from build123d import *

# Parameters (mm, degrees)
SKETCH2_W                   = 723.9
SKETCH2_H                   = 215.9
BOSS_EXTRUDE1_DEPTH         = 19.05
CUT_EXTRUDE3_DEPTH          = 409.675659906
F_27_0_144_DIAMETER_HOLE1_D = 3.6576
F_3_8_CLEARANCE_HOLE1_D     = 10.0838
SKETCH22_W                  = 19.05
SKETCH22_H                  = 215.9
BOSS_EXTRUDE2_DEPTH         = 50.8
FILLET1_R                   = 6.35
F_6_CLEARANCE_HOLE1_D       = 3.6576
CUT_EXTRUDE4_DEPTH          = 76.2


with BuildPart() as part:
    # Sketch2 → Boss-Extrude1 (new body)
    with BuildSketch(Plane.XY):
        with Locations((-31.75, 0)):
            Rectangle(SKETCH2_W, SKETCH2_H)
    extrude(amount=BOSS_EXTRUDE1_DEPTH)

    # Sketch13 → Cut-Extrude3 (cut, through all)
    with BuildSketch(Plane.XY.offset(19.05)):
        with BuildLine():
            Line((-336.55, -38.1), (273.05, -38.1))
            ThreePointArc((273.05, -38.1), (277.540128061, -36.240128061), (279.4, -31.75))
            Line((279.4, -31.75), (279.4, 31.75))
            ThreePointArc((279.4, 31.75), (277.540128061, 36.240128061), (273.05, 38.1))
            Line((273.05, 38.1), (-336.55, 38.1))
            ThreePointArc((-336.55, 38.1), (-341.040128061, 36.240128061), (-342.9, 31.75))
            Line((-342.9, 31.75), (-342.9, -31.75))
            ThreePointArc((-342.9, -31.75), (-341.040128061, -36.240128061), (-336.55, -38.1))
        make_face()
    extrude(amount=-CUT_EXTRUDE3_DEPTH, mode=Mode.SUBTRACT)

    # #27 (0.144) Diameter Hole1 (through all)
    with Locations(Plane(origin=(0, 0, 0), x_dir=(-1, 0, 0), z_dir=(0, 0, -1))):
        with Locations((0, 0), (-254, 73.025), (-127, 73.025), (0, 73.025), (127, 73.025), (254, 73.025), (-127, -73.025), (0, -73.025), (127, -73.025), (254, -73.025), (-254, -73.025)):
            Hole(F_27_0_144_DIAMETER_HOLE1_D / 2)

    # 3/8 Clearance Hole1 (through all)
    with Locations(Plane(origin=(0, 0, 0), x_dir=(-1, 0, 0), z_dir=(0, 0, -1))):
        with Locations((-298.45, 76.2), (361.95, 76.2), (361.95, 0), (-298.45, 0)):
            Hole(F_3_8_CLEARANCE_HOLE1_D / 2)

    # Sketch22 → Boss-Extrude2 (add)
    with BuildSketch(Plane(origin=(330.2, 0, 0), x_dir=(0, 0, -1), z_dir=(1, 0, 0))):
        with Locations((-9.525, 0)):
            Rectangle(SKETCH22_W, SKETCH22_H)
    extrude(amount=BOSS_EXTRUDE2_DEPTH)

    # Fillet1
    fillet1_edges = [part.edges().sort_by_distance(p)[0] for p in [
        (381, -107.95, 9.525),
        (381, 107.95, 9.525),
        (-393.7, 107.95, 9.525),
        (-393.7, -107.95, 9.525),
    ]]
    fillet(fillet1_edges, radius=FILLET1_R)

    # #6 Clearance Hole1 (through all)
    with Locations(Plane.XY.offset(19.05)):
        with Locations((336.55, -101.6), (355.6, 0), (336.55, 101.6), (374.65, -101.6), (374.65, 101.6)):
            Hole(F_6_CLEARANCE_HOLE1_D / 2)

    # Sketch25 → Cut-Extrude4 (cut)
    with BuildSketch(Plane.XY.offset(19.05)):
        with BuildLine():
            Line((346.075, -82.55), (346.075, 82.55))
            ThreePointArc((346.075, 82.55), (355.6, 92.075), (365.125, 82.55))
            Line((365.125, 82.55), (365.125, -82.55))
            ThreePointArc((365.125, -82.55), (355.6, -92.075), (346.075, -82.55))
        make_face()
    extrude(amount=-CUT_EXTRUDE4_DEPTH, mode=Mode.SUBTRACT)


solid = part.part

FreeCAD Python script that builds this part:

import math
import FreeCAD as App
import Part
import Sketcher

V = App.Vector
Q = App.Units.Quantity


def edges_at(feature, points):
    """Names of the edges that pass closest to the given points."""
    edges = feature.Shape.Edges
    near = lambda p: min(range(len(edges)), key=lambda i: edges[i].distToShape(Part.Vertex(*p))[0])
    return sorted({f"Edge{near(p) + 1}" for p in points})

doc = App.newDocument("Part")
params = doc.addObject("Spreadsheet::Sheet", "Params")
for row, (alias, value) in enumerate([
    ("sketch1_width", "28.5 in"),
    ("sketch1_height", "8.5 in"),
    ("pad1_length", "0.75 in"),
    ("sketch2_width", "24 in"),
    ("sketch2_radius", "0.25 in"),
    ("sketch2_height", "2.5 in"),
    ("sketch3_diameter", "0.144 in"),
    ("hole_diameter", "0.144 in"),
    ("sketch4_diameter", "0.397 in"),
    ("hole2_diameter", "0.397 in"),
    ("sketch5_width", "8.5 in"),
    ("sketch5_height", "0.75 in"),
    ("pad2_length", "2 in"),
    ("fillet_radius", "0.25 in"),
    ("sketch6_diameter", "0.144 in"),
    ("hole3_diameter", "0.144 in"),
    ("sketch7_height", "6.5 in"),
    ("sketch7_radius", "0.375 in"),
    ("pocket2_length", "3 in"),
], start=1):
    params.set(f"A{row}", alias)
    params.set(f"B{row}", "=" + value)
    params.setAlias(f"B{row}", alias)

body = doc.addObject("PartDesign::Body", "Body")

sketch1 = doc.addObject("Sketcher::SketchObject", "Sketch")
body.addObject(sketch1)
sketch1.AttachmentSupport = (doc.XY_Plane, [""])
sketch1.MapMode = "FlatFace"
sketch1.addGeometry(Part.LineSegment(V(-393.7, 107.95, 0), V(-393.7, -107.95, 0)), False)
sketch1.addGeometry(Part.LineSegment(V(-393.7, -107.95, 0), V(330.2, -107.95, 0)), False)
sketch1.addGeometry(Part.LineSegment(V(330.2, -107.95, 0), V(330.2, 107.95, 0)), False)
sketch1.addGeometry(Part.LineSegment(V(330.2, 107.95, 0), V(-393.7, 107.95, 0)), False)
sketch1.addConstraint(Sketcher.Constraint("Coincident", 0, 2, 1, 1))
sketch1.addConstraint(Sketcher.Constraint("Coincident", 1, 2, 2, 1))
sketch1.addConstraint(Sketcher.Constraint("Coincident", 2, 2, 3, 1))
sketch1.addConstraint(Sketcher.Constraint("Coincident", 3, 2, 0, 1))
sketch1.addConstraint(Sketcher.Constraint("Vertical", 0))
sketch1.addConstraint(Sketcher.Constraint("Horizontal", 1))
sketch1.addConstraint(Sketcher.Constraint("Vertical", 2))
sketch1.addConstraint(Sketcher.Constraint("Horizontal", 3))
sketch1.addConstraint(Sketcher.Constraint("DistanceX", 1, 1, 1, 2, Q("28.5 in")))
sketch1.addConstraint(Sketcher.Constraint("DistanceY", 0, 2, 0, 1, Q("8.5 in")))
sketch1.addConstraint(Sketcher.Constraint("DistanceX", -1, 1, 1, 2, Q("13 in")))
sketch1.addConstraint(Sketcher.Constraint("DistanceY", 0, 2, -1, 1, Q("4.25 in")))
sketch1.setExpression("Constraints[8]", "Params.sketch1_width")
sketch1.setExpression("Constraints[9]", "Params.sketch1_height")
pad1 = doc.addObject("PartDesign::Pad", "Pad")
body.addObject(pad1)
pad1.Profile = sketch1
pad1.setExpression("Length", "Params.pad1_length")

sketch2 = doc.addObject("Sketcher::SketchObject", "Sketch001")
body.addObject(sketch2)
sketch2.AttachmentSupport = (doc.XY_Plane, [""])
sketch2.MapMode = "FlatFace"
sketch2.AttachmentOffset = App.Placement(V(0, 0, 0.75 * 25.4), App.Rotation())
sketch2.addGeometry(Part.LineSegment(V(-336.55, -38.1, 0), V(273.05, -38.1, 0)), False)
sketch2.addGeometry(Part.ArcOfCircle(Part.Circle(V(273.05, -31.75, 0), V(0, 0, 1), 6.35), math.radians(-90), math.radians(0)), False)
sketch2.addGeometry(Part.LineSegment(V(279.4, -31.75, 0), V(279.4, 31.75, 0)), False)
sketch2.addGeometry(Part.ArcOfCircle(Part.Circle(V(273.05, 31.75, 0), V(0, 0, 1), 6.35), math.radians(0), math.radians(90)), False)
sketch2.addGeometry(Part.LineSegment(V(273.05, 38.1, 0), V(-336.55, 38.1, 0)), False)
sketch2.addGeometry(Part.ArcOfCircle(Part.Circle(V(-336.55, 31.75, 0), V(0, 0, 1), 6.35), math.radians(90), math.radians(180)), False)
sketch2.addGeometry(Part.LineSegment(V(-342.9, 31.75, 0), V(-342.9, -31.75, 0)), False)
sketch2.addGeometry(Part.ArcOfCircle(Part.Circle(V(-336.55, -31.75, 0), V(0, 0, 1), 6.35), math.radians(180), math.radians(270)), False)
sketch2.addConstraint(Sketcher.Constraint("Tangent", 0, 2, 1, 1))
sketch2.addConstraint(Sketcher.Constraint("Tangent", 1, 2, 2, 1))
sketch2.addConstraint(Sketcher.Constraint("Tangent", 2, 2, 3, 1))
sketch2.addConstraint(Sketcher.Constraint("Tangent", 3, 2, 4, 1))
sketch2.addConstraint(Sketcher.Constraint("Tangent", 4, 2, 5, 1))
sketch2.addConstraint(Sketcher.Constraint("Tangent", 5, 2, 6, 1))
sketch2.addConstraint(Sketcher.Constraint("Tangent", 6, 2, 7, 1))
sketch2.addConstraint(Sketcher.Constraint("Tangent", 7, 2, 0, 1))
sketch2.addConstraint(Sketcher.Constraint("Horizontal", 0))
sketch2.addConstraint(Sketcher.Constraint("Vertical", 2))
sketch2.addConstraint(Sketcher.Constraint("Horizontal", 4))
sketch2.addConstraint(Sketcher.Constraint("Vertical", 6))
sketch2.addConstraint(Sketcher.Constraint("Equal", 1, 3))
sketch2.addConstraint(Sketcher.Constraint("Equal", 3, 5))
sketch2.addConstraint(Sketcher.Constraint("Equal", 5, 7))
sketch2.addConstraint(Sketcher.Constraint("DistanceX", 0, 1, 0, 2, Q("24 in")))
sketch2.addConstraint(Sketcher.Constraint("Radius", 1, Q("0.25 in")))
sketch2.addConstraint(Sketcher.Constraint("DistanceY", 2, 1, 2, 2, Q("2.5 in")))
sketch2.addConstraint(Sketcher.Constraint("DistanceX", -1, 1, 1, 2, Q("11 in")))
sketch2.addConstraint(Sketcher.Constraint("DistanceY", 0, 2, -1, 1, Q("1.5 in")))
sketch2.setExpression("Constraints[15]", "Params.sketch2_width")
sketch2.setExpression("Constraints[16]", "Params.sketch2_radius")
sketch2.setExpression("Constraints[17]", "Params.sketch2_height")
pocket1 = doc.addObject("PartDesign::Pocket", "Pocket")
body.addObject(pocket1)
pocket1.Profile = sketch2
pocket1.Type = "ThroughAll"

sketch3 = doc.addObject("Sketcher::SketchObject", "Sketch002")
body.addObject(sketch3)
sketch3.AttachmentSupport = (doc.XY_Plane, [""])
sketch3.MapMode = "FlatFace"
sketch3.addGeometry(Part.Circle(V(0, 0, 0), V(0, 0, 1), 1.8288), False)
sketch3.addGeometry(Part.Circle(V(254, 73.025, 0), V(0, 0, 1), 1.8288), False)
sketch3.addGeometry(Part.Circle(V(127, 73.025, 0), V(0, 0, 1), 1.8288), False)
sketch3.addGeometry(Part.Circle(V(0, 73.025, 0), V(0, 0, 1), 1.8288), False)
sketch3.addGeometry(Part.Circle(V(-127, 73.025, 0), V(0, 0, 1), 1.8288), False)
sketch3.addGeometry(Part.Circle(V(-254, 73.025, 0), V(0, 0, 1), 1.8288), False)
sketch3.addGeometry(Part.Circle(V(127, -73.025, 0), V(0, 0, 1), 1.8288), False)
sketch3.addGeometry(Part.Circle(V(0, -73.025, 0), V(0, 0, 1), 1.8288), False)
sketch3.addGeometry(Part.Circle(V(-127, -73.025, 0), V(0, 0, 1), 1.8288), False)
sketch3.addGeometry(Part.Circle(V(-254, -73.025, 0), V(0, 0, 1), 1.8288), False)
sketch3.addGeometry(Part.Circle(V(254, -73.025, 0), V(0, 0, 1), 1.8288), False)
sketch3.addConstraint(Sketcher.Constraint("Coincident", 0, 3, -1, 1))
sketch3.addConstraint(Sketcher.Constraint("Equal", 0, 1))
sketch3.addConstraint(Sketcher.Constraint("Equal", 1, 2))
sketch3.addConstraint(Sketcher.Constraint("Equal", 2, 3))
sketch3.addConstraint(Sketcher.Constraint("Equal", 3, 4))
sketch3.addConstraint(Sketcher.Constraint("Equal", 4, 5))
sketch3.addConstraint(Sketcher.Constraint("Equal", 5, 6))
sketch3.addConstraint(Sketcher.Constraint("Equal", 6, 7))
sketch3.addConstraint(Sketcher.Constraint("Equal", 7, 8))
sketch3.addConstraint(Sketcher.Constraint("Equal", 8, 9))
sketch3.addConstraint(Sketcher.Constraint("Equal", 9, 10))
sketch3.addConstraint(Sketcher.Constraint("Symmetric", 4, 3, 6, 3, -1, 1))
sketch3.addConstraint(Sketcher.Constraint("Symmetric", 3, 3, 7, 3, -1, 1))
sketch3.addConstraint(Sketcher.Constraint("Symmetric", 2, 3, 8, 3, -1, 1))
sketch3.addConstraint(Sketcher.Constraint("Symmetric", 1, 3, 9, 3, -1, 1))
sketch3.addConstraint(Sketcher.Constraint("Symmetric", 5, 3, 10, 3, -1, 1))
sketch3.addConstraint(Sketcher.Constraint("Symmetric", 2, 3, 4, 3, -2))
sketch3.addConstraint(Sketcher.Constraint("Symmetric", 1, 3, 5, 3, -2))
sketch3.addConstraint(Sketcher.Constraint("PointOnObject", 3, 3, -2))
sketch3.addConstraint(Sketcher.Constraint("Horizontal", 1, 3, 2, 3))
sketch3.addConstraint(Sketcher.Constraint("Horizontal", 2, 3, 3, 3))
sketch3.addConstraint(Sketcher.Constraint("Diameter", 0, Q("0.144 in")))
sketch3.addConstraint(Sketcher.Constraint("DistanceX", -1, 1, 1, 3, Q("10 in")))
sketch3.addConstraint(Sketcher.Constraint("DistanceX", -1, 1, 2, 3, Q("5 in")))
sketch3.addConstraint(Sketcher.Constraint("DistanceY", 6, 3, 2, 3, Q("5.75 in")))
sketch3.setExpression("Constraints[21]", "Params.sketch3_diameter")
doc.recompute()
hole = doc.addObject("PartDesign::Hole", "Hole")
body.addObject(hole)
hole.Profile = sketch3
hole.ThreadType = "None"
hole.setExpression("Diameter", "Params.hole_diameter")
hole.DepthType = "ThroughAll"
hole.Reversed = True

sketch4 = doc.addObject("Sketcher::SketchObject", "Sketch003")
body.addObject(sketch4)
sketch4.AttachmentSupport = (doc.XY_Plane, [""])
sketch4.MapMode = "FlatFace"
sketch4.addGeometry(Part.Circle(V(298.45, 76.2, 0), V(0, 0, 1), 5.0419), False)
sketch4.addGeometry(Part.Circle(V(-361.95, 76.2, 0), V(0, 0, 1), 5.0419), False)
sketch4.addGeometry(Part.Circle(V(-361.95, 0, 0), V(0, 0, 1), 5.0419), False)
sketch4.addGeometry(Part.Circle(V(298.45, 0, 0), V(0, 0, 1), 5.0419), False)
sketch4.addConstraint(Sketcher.Constraint("Equal", 0, 1))
sketch4.addConstraint(Sketcher.Constraint("Equal", 1, 2))
sketch4.addConstraint(Sketcher.Constraint("Equal", 2, 3))
sketch4.addConstraint(Sketcher.Constraint("PointOnObject", 2, 3, -1))
sketch4.addConstraint(Sketcher.Constraint("PointOnObject", 3, 3, -1))
sketch4.addConstraint(Sketcher.Constraint("Horizontal", 0, 3, 1, 3))
sketch4.addConstraint(Sketcher.Constraint("Vertical", 1, 3, 2, 3))
sketch4.addConstraint(Sketcher.Constraint("Vertical", 0, 3, 3, 3))
sketch4.addConstraint(Sketcher.Constraint("Diameter", 0, Q("0.397 in")))
sketch4.addConstraint(Sketcher.Constraint("DistanceY", -1, 1, 0, 3, Q("3 in")))
sketch4.addConstraint(Sketcher.Constraint("DistanceX", 1, 3, 0, 3, Q("26 in")))
sketch4.addConstraint(Sketcher.Constraint("DistanceX", -1, 1, 0, 3, Q("11.75 in")))
sketch4.setExpression("Constraints[8]", "Params.sketch4_diameter")
doc.recompute()
hole2 = doc.addObject("PartDesign::Hole", "Hole001")
body.addObject(hole2)
hole2.Profile = sketch4
hole2.ThreadType = "None"
hole2.setExpression("Diameter", "Params.hole2_diameter")
hole2.DepthType = "ThroughAll"
hole2.Reversed = True

sketch5 = doc.addObject("Sketcher::SketchObject", "Sketch004")
body.addObject(sketch5)
sketch5.AttachmentSupport = (doc.YZ_Plane, [""])
sketch5.MapMode = "FlatFace"
sketch5.AttachmentOffset = App.Placement(V(0, 0, 13 * 25.4), App.Rotation())
sketch5.addGeometry(Part.LineSegment(V(107.95, 19.05, 0), V(-107.95, 19.05, 0)), False)
sketch5.addGeometry(Part.LineSegment(V(-107.95, 19.05, 0), V(-107.95, 0, 0)), False)
sketch5.addGeometry(Part.LineSegment(V(-107.95, 0, 0), V(107.95, 0, 0)), False)
sketch5.addGeometry(Part.LineSegment(V(107.95, 0, 0), V(107.95, 19.05, 0)), False)
sketch5.addConstraint(Sketcher.Constraint("Coincident", 0, 2, 1, 1))
sketch5.addConstraint(Sketcher.Constraint("Coincident", 1, 2, 2, 1))
sketch5.addConstraint(Sketcher.Constraint("Coincident", 2, 2, 3, 1))
sketch5.addConstraint(Sketcher.Constraint("Coincident", 3, 2, 0, 1))
sketch5.addConstraint(Sketcher.Constraint("Horizontal", 0))
sketch5.addConstraint(Sketcher.Constraint("Vertical", 1))
sketch5.addConstraint(Sketcher.Constraint("Horizontal", 2))
sketch5.addConstraint(Sketcher.Constraint("Vertical", 3))
sketch5.addConstraint(Sketcher.Constraint("Symmetric", 1, 2, 2, 2, -1, 1))
sketch5.addConstraint(Sketcher.Constraint("DistanceX", 0, 2, 0, 1, Q("8.5 in")))
sketch5.addConstraint(Sketcher.Constraint("DistanceY", 1, 2, 1, 1, Q("0.75 in")))
sketch5.setExpression("Constraints[9]", "Params.sketch5_width")
sketch5.setExpression("Constraints[10]", "Params.sketch5_height")
pad2 = doc.addObject("PartDesign::Pad", "Pad001")
body.addObject(pad2)
pad2.Profile = sketch5
pad2.setExpression("Length", "Params.pad2_length")
doc.recompute()

fillet = doc.addObject("PartDesign::Fillet", "Fillet")
body.addObject(fillet)
fillet.Base = (pad2, edges_at(pad2, [
    (381, -107.95, 9.525),
    (381, 107.95, 9.525),
    (-393.7, 107.95, 9.525),
    (-393.7, -107.95, 9.525),
]))
fillet.setExpression("Radius", "Params.fillet_radius")

sketch6 = doc.addObject("Sketcher::SketchObject", "Sketch005")
body.addObject(sketch6)
sketch6.AttachmentSupport = (doc.XY_Plane, [""])
sketch6.MapMode = "FlatFace"
sketch6.AttachmentOffset = App.Placement(V(0, 0, 0.75 * 25.4), App.Rotation())
sketch6.addGeometry(Part.Circle(V(336.55, -101.6, 0), V(0, 0, 1), 1.8288), False)
sketch6.addGeometry(Part.Circle(V(355.6, 0, 0), V(0, 0, 1), 1.8288), False)
sketch6.addGeometry(Part.Circle(V(336.55, 101.6, 0), V(0, 0, 1), 1.8288), False)
sketch6.addGeometry(Part.Circle(V(374.65, -101.6, 0), V(0, 0, 1), 1.8288), False)
sketch6.addGeometry(Part.Circle(V(374.65, 101.6, 0), V(0, 0, 1), 1.8288), False)
sketch6.addConstraint(Sketcher.Constraint("Equal", 0, 1))
sketch6.addConstraint(Sketcher.Constraint("Equal", 1, 2))
sketch6.addConstraint(Sketcher.Constraint("Equal", 2, 3))
sketch6.addConstraint(Sketcher.Constraint("Equal", 3, 4))
sketch6.addConstraint(Sketcher.Constraint("Symmetric", 0, 3, 2, 3, -1))
sketch6.addConstraint(Sketcher.Constraint("Symmetric", 3, 3, 4, 3, -1))
sketch6.addConstraint(Sketcher.Constraint("PointOnObject", 1, 3, -1))
sketch6.addConstraint(Sketcher.Constraint("Horizontal", 0, 3, 3, 3))
sketch6.addConstraint(Sketcher.Constraint("Diameter", 0, Q("0.144 in")))
sketch6.addConstraint(Sketcher.Constraint("DistanceY", 0, 3, -1, 1, Q("4 in")))
sketch6.addConstraint(Sketcher.Constraint("DistanceX", -1, 1, 1, 3, Q("14 in")))
sketch6.addConstraint(Sketcher.Constraint("DistanceX", 0, 3, 3, 3, Q("1.5 in")))
sketch6.addConstraint(Sketcher.Constraint("DistanceX", -1, 1, 0, 3, Q("13.25 in")))
sketch6.setExpression("Constraints[8]", "Params.sketch6_diameter")
doc.recompute()
hole3 = doc.addObject("PartDesign::Hole", "Hole002")
body.addObject(hole3)
hole3.Profile = sketch6
hole3.ThreadType = "None"
hole3.setExpression("Diameter", "Params.hole3_diameter")
hole3.DepthType = "ThroughAll"

sketch7 = doc.addObject("Sketcher::SketchObject", "Sketch006")
body.addObject(sketch7)
sketch7.AttachmentSupport = (doc.XY_Plane, [""])
sketch7.MapMode = "FlatFace"
sketch7.AttachmentOffset = App.Placement(V(0, 0, 0.75 * 25.4), App.Rotation())
sketch7.addGeometry(Part.LineSegment(V(346.075, 82.55, 0), V(346.075, -82.55, 0)), False)
sketch7.addGeometry(Part.ArcOfCircle(Part.Circle(V(355.6, -82.55, 0), V(0, 0, 1), 9.525), math.radians(180), math.radians(360)), False)
sketch7.addGeometry(Part.LineSegment(V(365.125, -82.55, 0), V(365.125, 82.55, 0)), False)
sketch7.addGeometry(Part.ArcOfCircle(Part.Circle(V(355.6, 82.55, 0), V(0, 0, 1), 9.525), math.radians(0), math.radians(180)), False)
sketch7.addConstraint(Sketcher.Constraint("Tangent", 0, 2, 1, 1))
sketch7.addConstraint(Sketcher.Constraint("Tangent", 1, 2, 2, 1))
sketch7.addConstraint(Sketcher.Constraint("Tangent", 2, 2, 3, 1))
sketch7.addConstraint(Sketcher.Constraint("Tangent", 3, 2, 0, 1))
sketch7.addConstraint(Sketcher.Constraint("Vertical", 0))
sketch7.addConstraint(Sketcher.Constraint("Vertical", 2))
sketch7.addConstraint(Sketcher.Constraint("DistanceY", 0, 2, 0, 1, Q("6.5 in")))
sketch7.addConstraint(Sketcher.Constraint("DistanceX", -1, 1, 1, 3, Q("14 in")))
sketch7.addConstraint(Sketcher.Constraint("Radius", 1, Q("0.375 in")))
sketch7.addConstraint(Sketcher.Constraint("DistanceY", 1, 3, -1, 1, Q("3.25 in")))
sketch7.setExpression("Constraints[6]", "Params.sketch7_height")
sketch7.setExpression("Constraints[8]", "Params.sketch7_radius")
pocket2 = doc.addObject("PartDesign::Pocket", "Pocket001")
body.addObject(pocket2)
pocket2.Profile = sketch7
pocket2.setExpression("Length", "Params.pocket2_length")

doc.recompute()
